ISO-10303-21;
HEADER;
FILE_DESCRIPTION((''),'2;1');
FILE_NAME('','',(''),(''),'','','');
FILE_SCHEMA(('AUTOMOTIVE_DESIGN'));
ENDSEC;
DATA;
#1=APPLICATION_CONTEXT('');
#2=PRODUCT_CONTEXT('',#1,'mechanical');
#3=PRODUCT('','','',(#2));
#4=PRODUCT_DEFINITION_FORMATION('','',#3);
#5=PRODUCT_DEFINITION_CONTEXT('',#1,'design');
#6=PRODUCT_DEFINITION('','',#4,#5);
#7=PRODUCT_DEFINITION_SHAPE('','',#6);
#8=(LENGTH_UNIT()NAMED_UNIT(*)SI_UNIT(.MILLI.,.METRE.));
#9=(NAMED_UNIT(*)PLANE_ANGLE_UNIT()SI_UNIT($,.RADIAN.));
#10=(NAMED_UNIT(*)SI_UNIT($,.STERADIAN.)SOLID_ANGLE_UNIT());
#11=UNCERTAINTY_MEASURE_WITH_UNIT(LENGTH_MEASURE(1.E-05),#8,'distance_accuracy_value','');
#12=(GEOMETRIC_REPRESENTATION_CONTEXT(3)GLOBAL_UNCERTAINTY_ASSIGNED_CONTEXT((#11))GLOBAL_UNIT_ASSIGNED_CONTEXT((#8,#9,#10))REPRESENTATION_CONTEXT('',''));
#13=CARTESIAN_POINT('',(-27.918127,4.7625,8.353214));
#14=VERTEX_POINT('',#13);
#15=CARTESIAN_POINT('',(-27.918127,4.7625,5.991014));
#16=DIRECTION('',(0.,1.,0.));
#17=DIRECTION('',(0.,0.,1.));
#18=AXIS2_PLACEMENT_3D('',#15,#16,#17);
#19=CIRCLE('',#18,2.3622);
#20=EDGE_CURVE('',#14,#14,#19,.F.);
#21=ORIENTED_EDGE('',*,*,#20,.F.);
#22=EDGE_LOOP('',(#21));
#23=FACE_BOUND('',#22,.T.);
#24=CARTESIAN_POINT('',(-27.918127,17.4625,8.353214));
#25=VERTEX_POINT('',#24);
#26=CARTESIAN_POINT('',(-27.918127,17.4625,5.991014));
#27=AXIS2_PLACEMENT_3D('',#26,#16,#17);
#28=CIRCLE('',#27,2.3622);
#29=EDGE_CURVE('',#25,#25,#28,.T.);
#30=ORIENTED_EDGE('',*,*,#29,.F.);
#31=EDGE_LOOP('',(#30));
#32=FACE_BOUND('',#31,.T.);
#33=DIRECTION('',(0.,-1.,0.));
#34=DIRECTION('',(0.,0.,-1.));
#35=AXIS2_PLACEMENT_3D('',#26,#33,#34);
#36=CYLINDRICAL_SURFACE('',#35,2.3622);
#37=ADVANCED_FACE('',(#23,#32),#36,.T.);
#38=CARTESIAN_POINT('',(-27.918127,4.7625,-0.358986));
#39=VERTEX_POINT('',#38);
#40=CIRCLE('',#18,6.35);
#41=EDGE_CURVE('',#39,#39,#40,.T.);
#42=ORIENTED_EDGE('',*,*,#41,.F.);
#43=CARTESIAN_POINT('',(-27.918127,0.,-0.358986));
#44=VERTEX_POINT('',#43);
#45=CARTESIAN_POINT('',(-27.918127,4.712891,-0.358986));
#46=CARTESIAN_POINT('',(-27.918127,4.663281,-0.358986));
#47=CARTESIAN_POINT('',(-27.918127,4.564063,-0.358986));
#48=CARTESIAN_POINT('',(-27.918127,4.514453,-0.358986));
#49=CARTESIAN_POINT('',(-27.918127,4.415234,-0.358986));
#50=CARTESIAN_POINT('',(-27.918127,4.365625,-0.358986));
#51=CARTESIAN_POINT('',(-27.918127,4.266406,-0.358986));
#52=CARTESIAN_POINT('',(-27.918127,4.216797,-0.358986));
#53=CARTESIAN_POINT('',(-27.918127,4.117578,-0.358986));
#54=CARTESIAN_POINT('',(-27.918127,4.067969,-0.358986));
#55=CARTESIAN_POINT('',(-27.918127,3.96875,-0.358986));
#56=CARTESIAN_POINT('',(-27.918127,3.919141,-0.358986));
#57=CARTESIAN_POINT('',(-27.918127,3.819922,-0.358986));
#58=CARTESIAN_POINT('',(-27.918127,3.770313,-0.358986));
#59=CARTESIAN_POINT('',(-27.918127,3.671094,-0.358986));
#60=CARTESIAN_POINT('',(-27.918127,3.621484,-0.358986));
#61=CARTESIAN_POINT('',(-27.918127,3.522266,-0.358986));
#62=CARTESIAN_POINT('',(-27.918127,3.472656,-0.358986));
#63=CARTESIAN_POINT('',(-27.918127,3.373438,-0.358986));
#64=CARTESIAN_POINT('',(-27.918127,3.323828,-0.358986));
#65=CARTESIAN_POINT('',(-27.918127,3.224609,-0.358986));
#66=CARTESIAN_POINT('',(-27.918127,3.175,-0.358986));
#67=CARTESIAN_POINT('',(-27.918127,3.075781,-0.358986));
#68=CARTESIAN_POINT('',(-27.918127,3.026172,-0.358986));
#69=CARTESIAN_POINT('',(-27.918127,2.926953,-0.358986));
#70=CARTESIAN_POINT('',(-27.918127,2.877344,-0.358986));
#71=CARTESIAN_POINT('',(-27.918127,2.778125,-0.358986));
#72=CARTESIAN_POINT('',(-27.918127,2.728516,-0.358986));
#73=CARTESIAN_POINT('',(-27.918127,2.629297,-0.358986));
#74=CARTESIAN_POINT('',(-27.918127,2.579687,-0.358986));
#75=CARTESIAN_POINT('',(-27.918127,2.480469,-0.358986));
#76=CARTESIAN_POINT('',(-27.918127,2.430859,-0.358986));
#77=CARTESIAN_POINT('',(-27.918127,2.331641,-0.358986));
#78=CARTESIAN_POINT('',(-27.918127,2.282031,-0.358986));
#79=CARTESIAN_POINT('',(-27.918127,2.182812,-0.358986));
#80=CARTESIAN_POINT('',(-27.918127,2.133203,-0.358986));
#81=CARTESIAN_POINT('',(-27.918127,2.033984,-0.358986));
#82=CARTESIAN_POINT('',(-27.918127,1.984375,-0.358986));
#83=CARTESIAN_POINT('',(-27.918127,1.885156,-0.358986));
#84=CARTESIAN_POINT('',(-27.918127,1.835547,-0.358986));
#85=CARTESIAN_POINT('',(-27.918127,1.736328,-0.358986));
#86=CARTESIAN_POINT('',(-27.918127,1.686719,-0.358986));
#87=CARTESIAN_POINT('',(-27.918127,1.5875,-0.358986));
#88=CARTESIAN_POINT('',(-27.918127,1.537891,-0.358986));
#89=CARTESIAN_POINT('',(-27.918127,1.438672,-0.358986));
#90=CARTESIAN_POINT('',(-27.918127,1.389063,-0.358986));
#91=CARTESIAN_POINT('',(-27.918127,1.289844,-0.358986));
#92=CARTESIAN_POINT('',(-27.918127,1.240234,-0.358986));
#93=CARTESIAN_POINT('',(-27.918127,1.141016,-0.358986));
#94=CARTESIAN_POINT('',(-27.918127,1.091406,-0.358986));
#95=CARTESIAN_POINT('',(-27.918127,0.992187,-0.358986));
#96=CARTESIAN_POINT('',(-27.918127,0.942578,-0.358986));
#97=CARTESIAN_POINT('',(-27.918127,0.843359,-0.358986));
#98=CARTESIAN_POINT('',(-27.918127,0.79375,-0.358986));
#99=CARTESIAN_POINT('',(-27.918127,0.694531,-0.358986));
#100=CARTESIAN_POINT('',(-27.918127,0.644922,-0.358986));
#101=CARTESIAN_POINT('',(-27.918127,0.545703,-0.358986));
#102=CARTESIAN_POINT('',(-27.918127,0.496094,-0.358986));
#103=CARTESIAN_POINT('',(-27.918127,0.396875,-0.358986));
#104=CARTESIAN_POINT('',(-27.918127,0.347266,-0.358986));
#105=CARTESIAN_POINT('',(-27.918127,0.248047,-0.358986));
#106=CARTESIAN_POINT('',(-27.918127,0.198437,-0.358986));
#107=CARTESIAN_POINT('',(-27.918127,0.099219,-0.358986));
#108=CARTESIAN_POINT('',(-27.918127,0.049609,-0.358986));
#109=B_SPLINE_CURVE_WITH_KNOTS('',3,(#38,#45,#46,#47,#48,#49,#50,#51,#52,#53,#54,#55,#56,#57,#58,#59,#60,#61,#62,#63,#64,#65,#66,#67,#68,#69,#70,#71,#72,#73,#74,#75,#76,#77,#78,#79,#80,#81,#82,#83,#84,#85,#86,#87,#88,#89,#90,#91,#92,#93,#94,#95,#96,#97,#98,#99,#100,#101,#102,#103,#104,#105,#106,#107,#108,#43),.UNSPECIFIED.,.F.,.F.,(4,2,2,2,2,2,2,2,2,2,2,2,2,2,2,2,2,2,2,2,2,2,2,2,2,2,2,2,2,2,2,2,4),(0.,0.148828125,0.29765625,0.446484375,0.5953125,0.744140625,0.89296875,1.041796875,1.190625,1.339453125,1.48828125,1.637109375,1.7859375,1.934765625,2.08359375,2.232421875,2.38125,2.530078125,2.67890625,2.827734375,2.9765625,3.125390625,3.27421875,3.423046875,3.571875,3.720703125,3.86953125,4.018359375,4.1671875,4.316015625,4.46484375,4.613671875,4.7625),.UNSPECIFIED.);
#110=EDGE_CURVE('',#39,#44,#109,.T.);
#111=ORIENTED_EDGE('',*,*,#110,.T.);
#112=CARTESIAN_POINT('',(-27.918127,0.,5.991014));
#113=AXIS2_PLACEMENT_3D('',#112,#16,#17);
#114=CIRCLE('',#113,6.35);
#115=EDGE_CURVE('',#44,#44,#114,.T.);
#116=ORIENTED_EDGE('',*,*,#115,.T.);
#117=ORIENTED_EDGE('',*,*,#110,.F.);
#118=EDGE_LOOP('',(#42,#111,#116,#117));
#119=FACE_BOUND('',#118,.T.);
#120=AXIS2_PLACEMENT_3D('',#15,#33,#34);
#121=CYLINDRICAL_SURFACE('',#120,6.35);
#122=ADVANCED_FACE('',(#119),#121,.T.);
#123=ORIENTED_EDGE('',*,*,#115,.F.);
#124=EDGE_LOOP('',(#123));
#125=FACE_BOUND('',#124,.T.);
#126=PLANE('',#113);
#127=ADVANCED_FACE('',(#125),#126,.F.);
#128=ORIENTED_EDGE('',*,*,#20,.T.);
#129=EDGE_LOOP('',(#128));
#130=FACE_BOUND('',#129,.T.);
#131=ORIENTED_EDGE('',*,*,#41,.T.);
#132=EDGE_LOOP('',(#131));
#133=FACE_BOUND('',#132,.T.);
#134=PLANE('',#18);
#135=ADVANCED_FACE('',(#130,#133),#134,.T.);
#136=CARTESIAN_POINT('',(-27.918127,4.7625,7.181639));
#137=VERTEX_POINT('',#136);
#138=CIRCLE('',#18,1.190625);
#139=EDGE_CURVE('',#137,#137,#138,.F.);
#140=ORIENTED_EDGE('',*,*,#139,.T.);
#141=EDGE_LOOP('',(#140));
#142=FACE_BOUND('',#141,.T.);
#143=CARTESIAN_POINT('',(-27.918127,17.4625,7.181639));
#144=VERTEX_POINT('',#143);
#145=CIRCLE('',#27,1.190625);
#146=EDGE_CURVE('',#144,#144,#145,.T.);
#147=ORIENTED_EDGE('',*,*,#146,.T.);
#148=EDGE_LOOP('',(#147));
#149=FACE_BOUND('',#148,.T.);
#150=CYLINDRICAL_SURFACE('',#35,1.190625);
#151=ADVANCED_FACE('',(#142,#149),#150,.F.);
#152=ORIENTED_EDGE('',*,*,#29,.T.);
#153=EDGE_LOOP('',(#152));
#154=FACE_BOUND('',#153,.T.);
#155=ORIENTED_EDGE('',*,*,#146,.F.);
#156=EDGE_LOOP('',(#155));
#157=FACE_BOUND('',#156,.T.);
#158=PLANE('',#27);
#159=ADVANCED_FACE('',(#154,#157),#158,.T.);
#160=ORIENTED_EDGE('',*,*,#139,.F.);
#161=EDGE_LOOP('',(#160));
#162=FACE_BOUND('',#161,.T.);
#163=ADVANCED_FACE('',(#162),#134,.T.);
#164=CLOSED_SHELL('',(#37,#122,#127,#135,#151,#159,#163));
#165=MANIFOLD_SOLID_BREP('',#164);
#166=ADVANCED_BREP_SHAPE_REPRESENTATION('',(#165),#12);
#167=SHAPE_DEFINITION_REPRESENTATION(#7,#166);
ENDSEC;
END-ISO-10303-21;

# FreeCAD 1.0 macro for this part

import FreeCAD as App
import Part
import Sketcher

V = App.Vector
Q = App.Units.Quantity

doc = App.newDocument("Part")
body = doc.addObject("PartDesign::Body", "Body")

# Sketch on XZ plane
sketch1 = body.newObject("Sketcher::SketchObject", "Sketch")
sketch1.AttachmentSupport = (doc.getObject("XZ_Plane"), [""])
sketch1.MapMode = "FlatFace"
sketch1.addGeometry(Part.Circle(V(-28, 6, 0), V(0, 0, 1), 6), False)
sketch1.addConstraint(Sketcher.Constraint("Diameter", 0, Q("0.5 in")))
sketch1.addConstraint(Sketcher.Constraint("DistanceX", 0, 3, -1, 1, Q("27.918127 mm")))
sketch1.addConstraint(Sketcher.Constraint("DistanceY", -1, 1, 0, 3, Q("5.991014 mm")))
pad1 = body.newObject("PartDesign::Pad", "Pad")
pad1.Profile = sketch1
pad1.Length = Q("0.1875 in")
pad1.Reversed = True

# Sketch on XZ plane
sketch2 = body.newObject("Sketcher::SketchObject", "Sketch001")
sketch2.AttachmentSupport = (doc.getObject("XZ_Plane"), [""])
sketch2.MapMode = "FlatFace"
sketch2.addGeometry(Part.Circle(V(-27.9, 6, 0), V(0, 0, 1), 2.4), False)
sketch2.addGeometry(Part.Circle(V(-27.9, 6, 0), V(0, 0, 1), 1.2), False)
sketch2.addConstraint(Sketcher.Constraint("Coincident", 1, 3, 0, 3))
sketch2.addConstraint(Sketcher.Constraint("Diameter", 0, Q("0.186 in")))
sketch2.addConstraint(Sketcher.Constraint("Diameter", 1, Q("0.09375 in")))
sketch2.addConstraint(Sketcher.Constraint("DistanceX", 0, 3, -1, 1, Q("27.918127 mm")))
sketch2.addConstraint(Sketcher.Constraint("DistanceY", -1, 1, 0, 3, Q("5.991014 mm")))
pad2 = body.newObject("PartDesign::Pad", "Pad001")
pad2.Profile = sketch2
pad2.Length = Q("0.6875 in")
pad2.Reversed = True

doc.recompute()
